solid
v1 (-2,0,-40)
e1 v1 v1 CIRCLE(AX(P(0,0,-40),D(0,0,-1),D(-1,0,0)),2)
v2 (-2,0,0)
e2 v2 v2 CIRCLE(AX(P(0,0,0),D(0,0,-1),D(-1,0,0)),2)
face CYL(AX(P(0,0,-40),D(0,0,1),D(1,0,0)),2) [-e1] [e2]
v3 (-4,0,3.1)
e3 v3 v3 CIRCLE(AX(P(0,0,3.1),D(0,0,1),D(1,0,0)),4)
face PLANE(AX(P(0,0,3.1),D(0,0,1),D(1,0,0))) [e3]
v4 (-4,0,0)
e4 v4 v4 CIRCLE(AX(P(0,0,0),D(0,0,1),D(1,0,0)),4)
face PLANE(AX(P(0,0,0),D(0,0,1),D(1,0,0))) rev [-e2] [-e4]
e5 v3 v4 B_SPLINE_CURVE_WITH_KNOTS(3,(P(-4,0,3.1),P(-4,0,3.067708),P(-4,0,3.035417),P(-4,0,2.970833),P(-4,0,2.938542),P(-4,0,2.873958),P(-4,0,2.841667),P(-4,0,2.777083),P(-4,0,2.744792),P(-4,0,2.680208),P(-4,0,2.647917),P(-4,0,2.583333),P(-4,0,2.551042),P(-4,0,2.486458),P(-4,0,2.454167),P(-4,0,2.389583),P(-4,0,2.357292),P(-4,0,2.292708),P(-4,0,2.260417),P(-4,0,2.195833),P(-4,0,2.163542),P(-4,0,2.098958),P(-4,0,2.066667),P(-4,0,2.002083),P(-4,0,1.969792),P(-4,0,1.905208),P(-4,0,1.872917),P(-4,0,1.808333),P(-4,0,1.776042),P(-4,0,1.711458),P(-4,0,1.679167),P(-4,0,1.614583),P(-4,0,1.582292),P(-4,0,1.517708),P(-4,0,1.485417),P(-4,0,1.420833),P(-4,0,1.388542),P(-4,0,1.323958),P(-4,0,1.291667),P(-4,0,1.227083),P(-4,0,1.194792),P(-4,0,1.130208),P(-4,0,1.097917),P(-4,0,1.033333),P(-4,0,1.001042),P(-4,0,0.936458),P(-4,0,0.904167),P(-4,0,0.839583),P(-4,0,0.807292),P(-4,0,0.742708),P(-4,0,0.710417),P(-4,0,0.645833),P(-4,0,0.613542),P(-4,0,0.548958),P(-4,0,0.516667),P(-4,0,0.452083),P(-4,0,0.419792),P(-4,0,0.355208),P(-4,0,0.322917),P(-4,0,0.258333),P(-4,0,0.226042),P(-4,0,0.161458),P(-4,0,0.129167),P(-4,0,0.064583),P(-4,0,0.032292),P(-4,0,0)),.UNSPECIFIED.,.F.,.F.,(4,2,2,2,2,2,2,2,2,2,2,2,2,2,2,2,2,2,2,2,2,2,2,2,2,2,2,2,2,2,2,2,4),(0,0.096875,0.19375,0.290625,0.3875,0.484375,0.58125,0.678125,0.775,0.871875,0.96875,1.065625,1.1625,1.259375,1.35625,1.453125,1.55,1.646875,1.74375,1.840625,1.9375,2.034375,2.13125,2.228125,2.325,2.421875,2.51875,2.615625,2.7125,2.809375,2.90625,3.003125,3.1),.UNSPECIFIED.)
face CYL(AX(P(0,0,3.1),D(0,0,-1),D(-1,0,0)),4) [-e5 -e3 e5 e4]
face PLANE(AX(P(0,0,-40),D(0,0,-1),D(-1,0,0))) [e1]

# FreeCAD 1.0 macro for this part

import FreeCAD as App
import Part
import Sketcher
from FreeCAD import Vector
Q = App.Units.Quantity

doc = App.newDocument("Part")
body = doc.addObject("PartDesign::Body", "Body")

# Sketch on XY plane
sketch1 = body.newObject("Sketcher::SketchObject", "Sketch")
sketch1.AttachmentSupport = (doc.getObject("XY_Plane"), [""])
sketch1.MapMode = "FlatFace"
sketch1.addGeometry(Part.Circle(Vector(0, 0, 0), Vector(0, 0, 1), 4), False)
sketch1.addConstraint(Sketcher.Constraint("Coincident", 0, 3, -1, 1))
sketch1.addConstraint(Sketcher.Constraint("Diameter", 0, Q("8 mm")))
pad1 = body.newObject("PartDesign::Pad", "Pad")
pad1.Profile = sketch1
pad1.Length = 3.1

# Sketch on XY plane
sketch2 = body.newObject("Sketcher::SketchObject", "Sketch001")
sketch2.AttachmentSupport = (doc.getObject("XY_Plane"), [""])
sketch2.MapMode = "FlatFace"
sketch2.addGeometry(Part.Circle(Vector(0, 0, 0), Vector(0, 0, 1), 2), False)
sketch2.addConstraint(Sketcher.Constraint("Coincident", 0, 3, -1, 1))
sketch2.addConstraint(Sketcher.Constraint("Diameter", 0, Q("4 mm")))
pad2 = body.newObject("PartDesign::Pad", "Pad001")
pad2.Profile = sketch2
pad2.Length = 40
pad2.Reversed = True

doc.recompute()
